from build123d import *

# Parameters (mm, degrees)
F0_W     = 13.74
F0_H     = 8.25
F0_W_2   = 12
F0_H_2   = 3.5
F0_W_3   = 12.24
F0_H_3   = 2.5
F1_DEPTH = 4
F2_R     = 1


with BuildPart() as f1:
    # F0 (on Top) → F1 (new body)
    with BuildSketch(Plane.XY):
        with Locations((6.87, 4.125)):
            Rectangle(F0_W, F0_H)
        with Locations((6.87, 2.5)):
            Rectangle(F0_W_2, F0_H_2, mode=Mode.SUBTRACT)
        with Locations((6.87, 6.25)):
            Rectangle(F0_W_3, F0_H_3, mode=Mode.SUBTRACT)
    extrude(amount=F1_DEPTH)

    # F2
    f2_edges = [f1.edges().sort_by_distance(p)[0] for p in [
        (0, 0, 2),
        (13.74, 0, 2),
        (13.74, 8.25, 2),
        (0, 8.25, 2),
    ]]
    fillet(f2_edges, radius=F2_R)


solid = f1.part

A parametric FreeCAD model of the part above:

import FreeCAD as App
import Part
import Sketcher
from FreeCAD import Vector


def edges_at(feature, points):
    """Names of the edges that pass closest to the given points."""
    edges = feature.Shape.Edges
    near = lambda p: min(range(len(edges)), key=lambda i: edges[i].distToShape(Part.Vertex(*p))[0])
    return sorted({f"Edge{near(p) + 1}" for p in points})


def add_polygon(sketch, points):
    """Adds a closed chain of lines whose ends are joined by coincident constraints."""
    first, n = sketch.GeometryCount, len(points)
    for a, b in zip(points, points[1:] + points[:1]):
        sketch.addGeometry(Part.LineSegment(App.Vector(*a, 0), App.Vector(*b, 0)), False)
    for i in range(n):
        sketch.addConstraint(Sketcher.Constraint("Coincident", first + i, 2, first + (i + 1) % n, 1))

doc = App.newDocument("Part")
body = doc.addObject("PartDesign::Body", "Body")

# Sketch on XY plane
sketch1 = body.newObject("Sketcher::SketchObject", "Sketch")
sketch1.AttachmentSupport = (doc.getObject("XY_Plane"), [""])
sketch1.MapMode = "FlatFace"
add_polygon(sketch1, [(0, 8.2), (0, 0), (13.7, 0), (13.7, 8.2)])  # lines 0-3
add_polygon(sketch1, [(12.9, 0.8), (0.9, 0.8), (0.9, 4.2), (12.9, 4.2)])  # lines 4-7
add_polygon(sketch1, [(13, 5), (0.8, 5), (0.8, 7.5), (13, 7.5)])  # lines 8-11
sketch1.addConstraint([
    Sketcher.Constraint("Vertical", 0),
    Sketcher.Constraint("Horizontal", 1),
    Sketcher.Constraint("Vertical", 2),
    Sketcher.Constraint("Horizontal", 3),
    Sketcher.Constraint("Horizontal", 4),
    Sketcher.Constraint("Vertical", 5),
    Sketcher.Constraint("Horizontal", 6),
    Sketcher.Constraint("Vertical", 7),
    Sketcher.Constraint("Horizontal", 8),
    Sketcher.Constraint("Vertical", 9),
    Sketcher.Constraint("Horizontal", 10),
    Sketcher.Constraint("Vertical", 11),
    Sketcher.Constraint("Coincident", 0, 2, -1, 1),
    Sketcher.Constraint("DistanceX", 4, 2, 4, 1, 12.0),
    Sketcher.Constraint("DistanceY", 5, 1, 5, 2, 3.5),
    Sketcher.Constraint("DistanceY", 9, 1, 9, 2, 2.5),
    Sketcher.Constraint("DistanceY", -1, 1, 8, 2, 5.0),
    Sketcher.Constraint("DistanceY", 5, 2, 3, 2, 4.0),
    Sketcher.Constraint("DistanceX", 1, 1, 1, 2, 13.74),
    Sketcher.Constraint("DistanceX", 8, 2, 8, 1, 12.24),
    Sketcher.Constraint("DistanceY", 0, 2, 0, 1, 8.25),
    Sketcher.Constraint("DistanceX", -1, 1, 4, 2, 0.87),
    Sketcher.Constraint("DistanceX", -1, 1, 8, 2, 0.75),
])
pad1 = body.newObject("PartDesign::Pad", "Pad")
pad1.Profile = sketch1
pad1.Length = 4
doc.recompute()

fillet = body.newObject("PartDesign::Fillet", "Fillet")
fillet.Base = (pad1, edges_at(pad1, [
    (0, 0, 2),
    (13.74, 0, 2),
    (13.74, 8.25, 2),
    (0, 8.25, 2),
]))
fillet.Radius = 1

doc.recompute()
